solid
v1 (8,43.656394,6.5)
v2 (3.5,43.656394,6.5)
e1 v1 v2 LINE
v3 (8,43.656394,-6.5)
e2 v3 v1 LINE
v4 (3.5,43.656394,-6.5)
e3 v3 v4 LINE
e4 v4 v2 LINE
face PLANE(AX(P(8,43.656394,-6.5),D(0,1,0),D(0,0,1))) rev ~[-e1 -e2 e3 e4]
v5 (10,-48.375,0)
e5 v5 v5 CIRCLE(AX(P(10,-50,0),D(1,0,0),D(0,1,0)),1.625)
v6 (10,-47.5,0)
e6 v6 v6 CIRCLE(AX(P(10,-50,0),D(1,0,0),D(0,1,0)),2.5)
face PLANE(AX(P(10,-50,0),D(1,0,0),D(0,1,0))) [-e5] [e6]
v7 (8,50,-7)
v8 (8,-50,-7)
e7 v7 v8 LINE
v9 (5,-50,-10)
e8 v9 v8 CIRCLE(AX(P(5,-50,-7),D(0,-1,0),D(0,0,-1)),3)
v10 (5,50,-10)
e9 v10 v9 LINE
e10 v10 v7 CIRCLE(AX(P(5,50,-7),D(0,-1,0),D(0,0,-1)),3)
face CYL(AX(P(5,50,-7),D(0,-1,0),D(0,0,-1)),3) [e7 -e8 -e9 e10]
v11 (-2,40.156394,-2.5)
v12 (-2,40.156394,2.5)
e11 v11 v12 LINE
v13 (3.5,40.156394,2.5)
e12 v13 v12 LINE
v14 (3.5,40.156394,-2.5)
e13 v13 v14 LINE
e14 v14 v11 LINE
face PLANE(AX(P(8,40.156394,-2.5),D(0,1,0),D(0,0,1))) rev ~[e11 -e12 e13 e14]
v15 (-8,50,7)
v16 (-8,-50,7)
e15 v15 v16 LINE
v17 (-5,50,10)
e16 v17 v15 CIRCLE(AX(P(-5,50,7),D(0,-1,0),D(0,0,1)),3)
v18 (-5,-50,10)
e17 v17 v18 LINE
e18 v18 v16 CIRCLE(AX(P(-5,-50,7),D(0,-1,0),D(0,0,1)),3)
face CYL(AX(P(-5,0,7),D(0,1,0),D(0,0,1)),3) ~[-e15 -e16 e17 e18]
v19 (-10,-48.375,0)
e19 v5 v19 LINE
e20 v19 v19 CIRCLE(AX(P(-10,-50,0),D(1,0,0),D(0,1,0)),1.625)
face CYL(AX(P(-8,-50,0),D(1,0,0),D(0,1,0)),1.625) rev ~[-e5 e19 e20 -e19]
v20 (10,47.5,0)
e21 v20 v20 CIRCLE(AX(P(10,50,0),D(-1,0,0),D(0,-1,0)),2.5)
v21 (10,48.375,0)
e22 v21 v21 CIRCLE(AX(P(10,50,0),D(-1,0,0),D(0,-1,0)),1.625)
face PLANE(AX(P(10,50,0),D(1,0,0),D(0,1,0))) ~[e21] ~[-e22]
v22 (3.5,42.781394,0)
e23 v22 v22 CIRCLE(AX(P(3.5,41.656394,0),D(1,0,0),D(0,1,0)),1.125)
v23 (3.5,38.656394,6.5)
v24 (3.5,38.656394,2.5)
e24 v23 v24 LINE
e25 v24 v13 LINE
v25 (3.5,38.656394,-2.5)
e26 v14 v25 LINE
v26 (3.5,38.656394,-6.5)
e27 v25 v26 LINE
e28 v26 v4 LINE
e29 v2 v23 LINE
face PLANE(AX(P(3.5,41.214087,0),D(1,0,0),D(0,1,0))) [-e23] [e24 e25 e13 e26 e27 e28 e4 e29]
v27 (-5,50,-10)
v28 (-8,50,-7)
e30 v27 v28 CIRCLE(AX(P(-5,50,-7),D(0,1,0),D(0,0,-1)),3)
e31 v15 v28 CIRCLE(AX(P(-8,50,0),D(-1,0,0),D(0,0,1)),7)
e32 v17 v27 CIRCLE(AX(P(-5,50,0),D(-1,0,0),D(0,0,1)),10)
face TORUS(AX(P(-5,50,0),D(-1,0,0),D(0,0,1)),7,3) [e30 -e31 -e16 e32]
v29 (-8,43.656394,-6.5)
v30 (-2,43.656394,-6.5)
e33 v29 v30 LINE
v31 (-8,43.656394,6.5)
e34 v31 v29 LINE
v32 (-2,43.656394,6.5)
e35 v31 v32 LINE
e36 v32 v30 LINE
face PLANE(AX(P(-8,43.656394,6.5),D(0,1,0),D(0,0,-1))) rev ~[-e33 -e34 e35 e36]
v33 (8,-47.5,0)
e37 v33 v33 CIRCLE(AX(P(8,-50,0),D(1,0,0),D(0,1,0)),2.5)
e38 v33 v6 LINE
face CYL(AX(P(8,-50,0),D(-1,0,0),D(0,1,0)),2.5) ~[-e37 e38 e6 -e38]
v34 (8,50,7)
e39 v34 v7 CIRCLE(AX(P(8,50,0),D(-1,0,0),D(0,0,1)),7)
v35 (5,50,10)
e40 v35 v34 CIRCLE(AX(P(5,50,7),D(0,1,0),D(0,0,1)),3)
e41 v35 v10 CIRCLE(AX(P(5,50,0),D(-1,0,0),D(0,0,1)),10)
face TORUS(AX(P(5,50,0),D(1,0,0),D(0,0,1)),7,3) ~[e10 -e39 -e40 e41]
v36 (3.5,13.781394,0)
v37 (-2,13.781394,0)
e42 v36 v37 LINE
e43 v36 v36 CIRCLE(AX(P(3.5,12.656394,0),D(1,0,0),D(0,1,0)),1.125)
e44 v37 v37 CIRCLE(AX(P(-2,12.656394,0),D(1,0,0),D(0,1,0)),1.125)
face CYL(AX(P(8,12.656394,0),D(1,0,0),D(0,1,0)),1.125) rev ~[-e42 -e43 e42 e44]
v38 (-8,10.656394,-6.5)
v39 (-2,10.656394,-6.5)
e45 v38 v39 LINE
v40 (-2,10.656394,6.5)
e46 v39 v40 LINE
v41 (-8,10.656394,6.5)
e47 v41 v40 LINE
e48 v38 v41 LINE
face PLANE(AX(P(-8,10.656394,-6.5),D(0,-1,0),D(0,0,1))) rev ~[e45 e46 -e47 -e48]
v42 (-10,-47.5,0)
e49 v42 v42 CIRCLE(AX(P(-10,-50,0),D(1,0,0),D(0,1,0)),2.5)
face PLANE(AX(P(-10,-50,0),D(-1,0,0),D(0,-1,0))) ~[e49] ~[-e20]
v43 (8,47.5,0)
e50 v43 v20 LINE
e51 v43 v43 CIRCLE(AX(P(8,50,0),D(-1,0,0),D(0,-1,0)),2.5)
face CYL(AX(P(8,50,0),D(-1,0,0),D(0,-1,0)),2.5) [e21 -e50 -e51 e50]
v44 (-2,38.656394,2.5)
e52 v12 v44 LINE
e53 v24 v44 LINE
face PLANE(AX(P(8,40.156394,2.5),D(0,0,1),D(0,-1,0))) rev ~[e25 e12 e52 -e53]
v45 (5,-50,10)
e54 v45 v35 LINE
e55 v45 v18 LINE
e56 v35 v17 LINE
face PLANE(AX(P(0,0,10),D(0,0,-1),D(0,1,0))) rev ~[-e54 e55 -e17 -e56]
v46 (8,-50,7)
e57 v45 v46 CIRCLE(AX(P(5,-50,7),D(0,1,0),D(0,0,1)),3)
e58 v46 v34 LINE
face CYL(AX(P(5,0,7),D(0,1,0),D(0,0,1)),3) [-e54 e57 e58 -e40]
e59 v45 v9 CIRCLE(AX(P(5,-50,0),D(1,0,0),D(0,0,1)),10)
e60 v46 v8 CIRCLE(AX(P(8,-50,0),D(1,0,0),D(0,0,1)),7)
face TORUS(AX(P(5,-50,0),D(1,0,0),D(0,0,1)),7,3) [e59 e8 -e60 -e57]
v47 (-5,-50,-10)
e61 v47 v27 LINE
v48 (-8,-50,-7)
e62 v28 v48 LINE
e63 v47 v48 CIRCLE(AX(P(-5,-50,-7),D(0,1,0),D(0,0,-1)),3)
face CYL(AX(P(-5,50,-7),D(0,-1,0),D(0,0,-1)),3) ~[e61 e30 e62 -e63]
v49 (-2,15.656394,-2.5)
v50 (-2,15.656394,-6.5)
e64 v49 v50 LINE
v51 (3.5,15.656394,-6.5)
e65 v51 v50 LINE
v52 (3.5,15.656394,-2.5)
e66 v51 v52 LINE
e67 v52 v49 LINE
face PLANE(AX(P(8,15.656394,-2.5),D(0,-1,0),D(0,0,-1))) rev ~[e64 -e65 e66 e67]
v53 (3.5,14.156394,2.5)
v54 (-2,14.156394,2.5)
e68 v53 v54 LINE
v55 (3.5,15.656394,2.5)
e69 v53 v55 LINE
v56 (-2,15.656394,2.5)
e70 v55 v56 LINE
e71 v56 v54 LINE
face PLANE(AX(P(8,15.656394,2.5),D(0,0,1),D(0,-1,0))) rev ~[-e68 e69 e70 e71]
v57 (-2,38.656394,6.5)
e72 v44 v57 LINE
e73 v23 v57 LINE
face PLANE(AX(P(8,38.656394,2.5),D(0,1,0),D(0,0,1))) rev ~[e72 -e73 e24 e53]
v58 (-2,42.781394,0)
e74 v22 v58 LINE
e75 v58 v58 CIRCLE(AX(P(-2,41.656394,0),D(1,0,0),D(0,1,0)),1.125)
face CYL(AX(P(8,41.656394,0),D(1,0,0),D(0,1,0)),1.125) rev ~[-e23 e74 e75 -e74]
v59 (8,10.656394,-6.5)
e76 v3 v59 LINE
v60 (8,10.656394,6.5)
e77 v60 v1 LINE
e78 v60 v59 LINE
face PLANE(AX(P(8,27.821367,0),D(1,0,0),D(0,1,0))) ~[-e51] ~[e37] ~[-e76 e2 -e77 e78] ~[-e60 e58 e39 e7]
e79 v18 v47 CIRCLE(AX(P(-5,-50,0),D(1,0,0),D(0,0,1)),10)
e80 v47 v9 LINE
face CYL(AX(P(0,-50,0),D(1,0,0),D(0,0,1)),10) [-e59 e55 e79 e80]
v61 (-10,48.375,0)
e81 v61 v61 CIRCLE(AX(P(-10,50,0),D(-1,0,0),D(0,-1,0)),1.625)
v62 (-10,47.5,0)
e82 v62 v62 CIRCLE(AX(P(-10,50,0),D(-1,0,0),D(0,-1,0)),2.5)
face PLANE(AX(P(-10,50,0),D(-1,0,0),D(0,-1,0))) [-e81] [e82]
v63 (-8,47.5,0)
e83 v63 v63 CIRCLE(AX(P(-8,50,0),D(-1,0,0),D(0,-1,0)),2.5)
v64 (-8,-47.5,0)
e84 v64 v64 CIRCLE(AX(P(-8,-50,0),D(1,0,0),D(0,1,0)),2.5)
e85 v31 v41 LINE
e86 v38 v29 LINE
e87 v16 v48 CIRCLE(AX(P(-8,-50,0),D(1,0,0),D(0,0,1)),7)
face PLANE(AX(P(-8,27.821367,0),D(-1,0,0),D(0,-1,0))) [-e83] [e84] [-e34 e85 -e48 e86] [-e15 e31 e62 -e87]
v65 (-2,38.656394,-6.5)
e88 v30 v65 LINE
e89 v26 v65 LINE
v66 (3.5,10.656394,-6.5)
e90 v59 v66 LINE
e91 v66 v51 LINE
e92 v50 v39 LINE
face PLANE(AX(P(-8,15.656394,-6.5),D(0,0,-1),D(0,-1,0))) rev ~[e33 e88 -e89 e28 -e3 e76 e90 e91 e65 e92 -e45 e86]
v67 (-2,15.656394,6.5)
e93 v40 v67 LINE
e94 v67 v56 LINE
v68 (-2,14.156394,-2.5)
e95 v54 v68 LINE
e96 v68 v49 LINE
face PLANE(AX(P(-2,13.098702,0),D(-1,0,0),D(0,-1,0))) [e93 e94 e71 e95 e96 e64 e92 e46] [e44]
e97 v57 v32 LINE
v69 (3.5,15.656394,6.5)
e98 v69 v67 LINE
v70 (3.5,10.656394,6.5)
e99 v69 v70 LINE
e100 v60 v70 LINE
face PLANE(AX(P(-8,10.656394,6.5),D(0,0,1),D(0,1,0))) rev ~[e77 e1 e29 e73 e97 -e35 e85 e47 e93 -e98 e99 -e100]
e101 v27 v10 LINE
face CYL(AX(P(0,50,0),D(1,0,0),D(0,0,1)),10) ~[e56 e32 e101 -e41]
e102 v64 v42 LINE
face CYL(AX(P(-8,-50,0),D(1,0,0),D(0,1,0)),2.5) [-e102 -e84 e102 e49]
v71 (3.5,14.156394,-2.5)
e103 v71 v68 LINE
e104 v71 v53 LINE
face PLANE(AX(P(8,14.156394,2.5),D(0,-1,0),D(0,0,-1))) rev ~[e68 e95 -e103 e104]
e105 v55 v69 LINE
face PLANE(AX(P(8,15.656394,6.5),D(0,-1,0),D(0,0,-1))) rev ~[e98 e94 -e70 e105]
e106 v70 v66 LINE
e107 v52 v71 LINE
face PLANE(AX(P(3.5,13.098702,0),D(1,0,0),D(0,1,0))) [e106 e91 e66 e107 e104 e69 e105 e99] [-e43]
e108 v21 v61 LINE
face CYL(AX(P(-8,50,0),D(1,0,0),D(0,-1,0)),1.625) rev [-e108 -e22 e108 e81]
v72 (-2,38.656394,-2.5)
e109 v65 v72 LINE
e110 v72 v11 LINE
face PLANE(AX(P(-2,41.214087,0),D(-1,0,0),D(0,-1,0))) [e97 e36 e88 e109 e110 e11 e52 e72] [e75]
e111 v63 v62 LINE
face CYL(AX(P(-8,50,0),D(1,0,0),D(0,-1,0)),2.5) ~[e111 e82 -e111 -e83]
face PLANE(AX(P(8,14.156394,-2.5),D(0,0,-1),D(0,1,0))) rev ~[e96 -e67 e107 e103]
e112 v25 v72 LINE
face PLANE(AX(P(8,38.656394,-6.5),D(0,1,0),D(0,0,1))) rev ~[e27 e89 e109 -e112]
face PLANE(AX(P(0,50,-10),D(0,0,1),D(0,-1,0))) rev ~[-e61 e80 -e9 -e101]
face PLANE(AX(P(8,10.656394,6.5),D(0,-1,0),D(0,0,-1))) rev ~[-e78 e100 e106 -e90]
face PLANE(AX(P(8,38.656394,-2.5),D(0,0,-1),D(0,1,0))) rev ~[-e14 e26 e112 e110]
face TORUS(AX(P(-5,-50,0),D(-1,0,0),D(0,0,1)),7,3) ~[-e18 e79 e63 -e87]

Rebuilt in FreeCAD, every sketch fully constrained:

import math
import FreeCAD as App
import Part
import Sketcher
from FreeCAD import Vector


def edges_at(feature, points):
    """Names of the edges that pass closest to the given points."""
    edges = feature.Shape.Edges
    near = lambda p: min(range(len(edges)), key=lambda i: edges[i].distToShape(Part.Vertex(*p))[0])
    return sorted({f"Edge{near(p) + 1}" for p in points})


def add_polygon(sketch, points):
    """Adds a closed chain of lines whose ends are joined by coincident constraints."""
    first, n = sketch.GeometryCount, len(points)
    for a, b in zip(points, points[1:] + points[:1]):
        sketch.addGeometry(Part.LineSegment(App.Vector(*a, 0), App.Vector(*b, 0)), False)
    for i in range(n):
        sketch.addConstraint(Sketcher.Constraint("Coincident", first + i, 2, first + (i + 1) % n, 1))

doc = App.newDocument("Part")
body = doc.addObject("PartDesign::Body", "Body")

sketch1 = doc.addObject("Sketcher::SketchObject", "Sketch")
body.addObject(sketch1)
sketch1.AttachmentSupport = (doc.YZ_Plane, [""])
sketch1.MapMode = "FlatFace"
sketch1.addGeometry(Part.LineSegment(Vector(0, -10, 0), Vector(0, 10, 0)), False)
sketch1.addGeometry(Part.LineSegment(Vector(0, 10, 0), Vector(-50, 10, 0)), False)
sketch1.addGeometry(Part.ArcOfCircle(Part.Circle(Vector(-50, 0, 0), Vector(0, 0, 1), 10), math.radians(90), math.radians(270)), False)
sketch1.addGeometry(Part.LineSegment(Vector(-50, -10, 0), Vector(0, -10, 0)), False)
sketch1.addGeometry(Part.Circle(Vector(-50, 0, 0), Vector(0, 0, 1), 1.625), False)
sketch1.addConstraint(Sketcher.Constraint("Coincident", 0, 2, 1, 1))
sketch1.addConstraint(Sketcher.Constraint("Tangent", 1, 2, 2, 1))
sketch1.addConstraint(Sketcher.Constraint("Tangent", 2, 2, 3, 1))
sketch1.addConstraint(Sketcher.Constraint("Coincident", 3, 2, 0, 1))
sketch1.addConstraint(Sketcher.Constraint("Vertical", 0))
sketch1.addConstraint(Sketcher.Constraint("Horizontal", 1))
sketch1.addConstraint(Sketcher.Constraint("Horizontal", 3))
sketch1.addConstraint(Sketcher.Constraint("Coincident", 4, 3, 2, 3))
sketch1.addConstraint(Sketcher.Constraint("Symmetric", 0, 2, 3, 2, -1, 1))
sketch1.addConstraint(Sketcher.Constraint("Radius", 2, 10.0))
sketch1.addConstraint(Sketcher.Constraint("Diameter", 4, 3.25))
sketch1.addConstraint(Sketcher.Constraint("DistanceX", 1, 2, 1, 1, 50.0))
pad1 = doc.addObject("PartDesign::Pad", "Pad")
body.addObject(pad1)
pad1.Profile = sketch1
pad1.Length = 8

sketch2 = doc.addObject("Sketcher::SketchObject", "Sketch001")
body.addObject(sketch2)
sketch2.AttachmentSupport = (doc.YZ_Plane, [""])
sketch2.MapMode = "FlatFace"
sketch2.AttachmentOffset = App.Placement(Vector(0, 0, 8), App.Rotation())
sketch2.addGeometry(Part.Circle(Vector(-50, 0, 0), Vector(0, 0, 1), 2.5), False)
sketch2.addGeometry(Part.Circle(Vector(-50, 0, 0), Vector(0, 0, 1), 1.625), False)
sketch2.addConstraint(Sketcher.Constraint("Coincident", 1, 3, 0, 3))
sketch2.addConstraint(Sketcher.Constraint("PointOnObject", 0, 3, -1))
sketch2.addConstraint(Sketcher.Constraint("Diameter", 0, 5.0))
sketch2.addConstraint(Sketcher.Constraint("Diameter", 1, 3.25))
sketch2.addConstraint(Sketcher.Constraint("DistanceX", 0, 3, -1, 1, 50.0))
pad2 = doc.addObject("PartDesign::Pad", "Pad001")
body.addObject(pad2)
pad2.Profile = sketch2
pad2.Length = 2
doc.recompute()

fillet = doc.addObject("PartDesign::Fillet", "Fillet")
body.addObject(fillet)
fillet.Base = (pad2, edges_at(pad2, [(8, -25, 10)]))
fillet.Radius = 3
body2 = doc.addObject("PartDesign::Body", "Body001")
doc.recompute()

body2.BaseFeature = body
doc.recompute()

mirroring = doc.addObject("Part::Mirroring", "Mirroring")
mirroring.Source = body
mirroring.Base = Vector(0, 0, 0)
mirroring.Normal = Vector(1, 0, 0)
body3 = doc.addObject("PartDesign::Body", "Body002")
body3.BaseFeature = mirroring
boolean = doc.addObject("PartDesign::Boolean", "Boolean")
body2.addObject(boolean)
boolean.Type = "Fuse"
boolean.addObjects([body3])
doc.recompute()
body4 = doc.addObject("PartDesign::Body", "Body003")
doc.recompute()

body4.BaseFeature = body2
doc.recompute()

mirroring2 = doc.addObject("Part::Mirroring", "Mirroring001")
mirroring2.Source = body2
mirroring2.Base = Vector(0, 0, 0)
mirroring2.Normal = Vector(0, -1, 0)
body5 = doc.addObject("PartDesign::Body", "Body004")
body5.BaseFeature = mirroring2
boolean2 = doc.addObject("PartDesign::Boolean", "Boolean001")
body4.addObject(boolean2)
boolean2.Type = "Fuse"
boolean2.addObjects([body5])
doc.recompute()

sketch3 = doc.addObject("Sketcher::SketchObject", "Sketch002")
body4.addObject(sketch3)
sketch3.AttachmentSupport = (doc.getObject("YZ_Plane003"), [""])
sketch3.MapMode = "FlatFace"
sketch3.AttachmentOffset = App.Placement(Vector(0, 0, 8), App.Rotation())
add_polygon(sketch3, [(15.656394, -6.5), (38.656394, -6.5), (38.656394, -2.5), (40.156394, -2.5), (40.156394, 2.5), (38.656394, 2.5), (38.656394, 6.5), (15.656394, 6.5), (15.656394, 2.5), (14.156394, 2.5), (14.156394, -2.5), (15.656394, -2.5)])
sketch3.addGeometry(Part.Circle(Vector(12.656394, 0, 0), Vector(0, 0, 1), 1.125), False)
sketch3.addGeometry(Part.Circle(Vector(41.656394, 0, 0), Vector(0, 0, 1), 1.125), False)
sketch3.addConstraint(Sketcher.Constraint("Horizontal", 0))
sketch3.addConstraint(Sketcher.Constraint("Vertical", 1))
sketch3.addConstraint(Sketcher.Constraint("Horizontal", 2))
sketch3.addConstraint(Sketcher.Constraint("Vertical", 3))
sketch3.addConstraint(Sketcher.Constraint("Horizontal", 4))
sketch3.addConstraint(Sketcher.Constraint("Vertical", 5))
sketch3.addConstraint(Sketcher.Constraint("Horizontal", 6))
sketch3.addConstraint(Sketcher.Constraint("Vertical", 7))
sketch3.addConstraint(Sketcher.Constraint("Horizontal", 8))
sketch3.addConstraint(Sketcher.Constraint("Vertical", 9))
sketch3.addConstraint(Sketcher.Constraint("Horizontal", 10))
sketch3.addConstraint(Sketcher.Constraint("Vertical", 11))
sketch3.addConstraint(Sketcher.Constraint("Equal", 12, 13))
sketch3.addConstraint(Sketcher.Constraint("Symmetric", 1, 2, 4, 2, -1))
sketch3.addConstraint(Sketcher.Constraint("Symmetric", 7, 2, 10, 2, -1))
sketch3.addConstraint(Sketcher.Constraint("PointOnObject", 12, 3, -1))
sketch3.addConstraint(Sketcher.Constraint("PointOnObject", 13, 3, -1))
sketch3.addConstraint(Sketcher.Constraint("Horizontal", 4, 2, 7, 2))
sketch3.addConstraint(Sketcher.Constraint("Equal", 4, 8))
sketch3.addConstraint(Sketcher.Constraint("Equal", 1, 5))
sketch3.addConstraint(Sketcher.Constraint("Diameter", 12, 2.25))
sketch3.addConstraint(Sketcher.Constraint("DistanceX", 0, 1, 0, 2, 23.0))
sketch3.addConstraint(Sketcher.Constraint("DistanceY", 1, 1, 1, 2, 4.0))
sketch3.addConstraint(Sketcher.Constraint("DistanceY", 3, 1, 3, 2, 5.0))
sketch3.addConstraint(Sketcher.Constraint("DistanceX", 2, 1, 2, 2, 1.5))
sketch3.addConstraint(Sketcher.Constraint("DistanceX", 12, 3, 13, 3, 29.0))
sketch3.addConstraint(Sketcher.Constraint("DistanceX", 0, 2, 13, 3, 3.0))
sketch3.addConstraint(Sketcher.Constraint("DistanceX", -1, 1, 12, 3, 12.656394))
pocket1 = doc.addObject("PartDesign::Pocket", "Pocket")
body4.addObject(pocket1)
pocket1.Profile = sketch3
pocket1.Type = "ThroughAll"

sketch4 = doc.addObject("Sketcher::SketchObject", "Sketch003")
body4.addObject(sketch4)
sketch4.AttachmentSupport = (doc.getObject("YZ_Plane003"), [""])
sketch4.MapMode = "FlatFace"
sketch4.AttachmentOffset = App.Placement(Vector(0, 0, 8), App.Rotation())
add_polygon(sketch4, [(15.656394, 6.5), (10.656394, 6.5), (10.656394, -6.5), (15.656394, -6.5), (15.656394, -2.5), (14.156394, -2.5), (14.156394, 2.5), (15.656394, 2.5)])
sketch4.addGeometry(Part.Circle(Vector(12.656394, 0, 0), Vector(0, 0, 1), 1.125), False)
add_polygon(sketch4, [(43.656394, 6.5), (38.656394, 6.5), (38.656394, 2.5), (40.156394, 2.5), (40.156394, -2.5), (38.656394, -2.5), (38.656394, -6.5), (43.656394, -6.5)])
sketch4.addGeometry(Part.Circle(Vector(41.656394, 0, 0), Vector(0, 0, 1), 1.125), False)
sketch4.addConstraint(Sketcher.Constraint("Horizontal", 0))
sketch4.addConstraint(Sketcher.Constraint("Vertical", 1))
sketch4.addConstraint(Sketcher.Constraint("Horizontal", 2))
sketch4.addConstraint(Sketcher.Constraint("Vertical", 3))
sketch4.addConstraint(Sketcher.Constraint("Horizontal", 4))
sketch4.addConstraint(Sketcher.Constraint("Vertical", 5))
sketch4.addConstraint(Sketcher.Constraint("Horizontal", 6))
sketch4.addConstraint(Sketcher.Constraint("Vertical", 7))
sketch4.addConstraint(Sketcher.Constraint("Horizontal", 9))
sketch4.addConstraint(Sketcher.Constraint("Vertical", 10))
sketch4.addConstraint(Sketcher.Constraint("Horizontal", 11))
sketch4.addConstraint(Sketcher.Constraint("Vertical", 12))
sketch4.addConstraint(Sketcher.Constraint("Horizontal", 13))
sketch4.addConstraint(Sketcher.Constraint("Vertical", 14))
sketch4.addConstraint(Sketcher.Constraint("Horizontal", 15))
sketch4.addConstraint(Sketcher.Constraint("Vertical", 16))
sketch4.addConstraint(Sketcher.Constraint("Equal", 8, 17))
sketch4.addConstraint(Sketcher.Constraint("Symmetric", 3, 2, 6, 2, -1))
sketch4.addConstraint(Sketcher.Constraint("Symmetric", 10, 2, 13, 2, -1))
sketch4.addConstraint(Sketcher.Constraint("PointOnObject", 8, 3, -1))
sketch4.addConstraint(Sketcher.Constraint("PointOnObject", 17, 3, -1))
sketch4.addConstraint(Sketcher.Constraint("Horizontal", 7, 2, 9, 2))
sketch4.addConstraint(Sketcher.Constraint("Horizontal", 6, 2, 10, 2))
sketch4.addConstraint(Sketcher.Constraint("Horizontal", 2, 2, 14, 2))
sketch4.addConstraint(Sketcher.Constraint("Equal", 2, 9))
sketch4.addConstraint(Sketcher.Constraint("Equal", 6, 11))
sketch4.addConstraint(Sketcher.Constraint("Equal", 15, 5))
sketch4.addConstraint(Sketcher.Constraint("Equal", 3, 7))
sketch4.addConstraint(Sketcher.Constraint("Diameter", 8, 2.25))
sketch4.addConstraint(Sketcher.Constraint("DistanceX", 0, 2, 0, 1, 5.0))
sketch4.addConstraint(Sketcher.Constraint("DistanceY", 1, 2, 1, 1, 13.0))
sketch4.addConstraint(Sketcher.Constraint("DistanceX", 4, 2, 4, 1, 1.5))
sketch4.addConstraint(Sketcher.Constraint("DistanceX", 8, 3, 17, 3, 29.0))
sketch4.addConstraint(Sketcher.Constraint("DistanceX", 0, 2, 8, 3, 2.0))
sketch4.addConstraint(Sketcher.Constraint("DistanceX", 9, 2, 17, 3, 3.0))
sketch4.addConstraint(Sketcher.Constraint("DistanceX", -1, 1, 8, 3, 12.656394))
pocket2 = doc.addObject("PartDesign::Pocket", "Pocket001")
body4.addObject(pocket2)
pocket2.Profile = sketch4
pocket2.Length = 4.5

sketch5 = doc.addObject("Sketcher::SketchObject", "Sketch004")
body4.addObject(sketch5)
sketch5.AttachmentSupport = (doc.getObject("YZ_Plane003"), [""])
sketch5.MapMode = "FlatFace"
sketch5.AttachmentOffset = App.Placement(Vector(0, 0, -8), App.Rotation())
add_polygon(sketch5, [(43.656394, 6.5), (43.656394, -6.5), (38.656394, -6.5), (38.656394, -2.5), (40.156394, -2.5), (40.156394, 2.5), (38.656394, 2.5), (38.656394, 6.5)])
sketch5.addGeometry(Part.Circle(Vector(41.656394, 0, 0), Vector(0, 0, 1), 1.125), False)
add_polygon(sketch5, [(15.656394, -2.5), (15.656394, -6.5), (10.656394, -6.5), (10.656394, 6.5), (15.656394, 6.5), (15.656394, 2.5), (14.156394, 2.5), (14.156394, -2.5)])
sketch5.addGeometry(Part.Circle(Vector(12.656394, 0, 0), Vector(0, 0, 1), 1.125), False)
sketch5.addConstraint(Sketcher.Constraint("Vertical", 0))
sketch5.addConstraint(Sketcher.Constraint("Horizontal", 1))
sketch5.addConstraint(Sketcher.Constraint("Vertical", 2))
sketch5.addConstraint(Sketcher.Constraint("Horizontal", 3))
sketch5.addConstraint(Sketcher.Constraint("Vertical", 4))
sketch5.addConstraint(Sketcher.Constraint("Horizontal", 5))
sketch5.addConstraint(Sketcher.Constraint("Vertical", 6))
sketch5.addConstraint(Sketcher.Constraint("Horizontal", 7))
sketch5.addConstraint(Sketcher.Constraint("Vertical", 9))
sketch5.addConstraint(Sketcher.Constraint("Horizontal", 10))
sketch5.addConstraint(Sketcher.Constraint("Vertical", 11))
sketch5.addConstraint(Sketcher.Constraint("Horizontal", 12))
sketch5.addConstraint(Sketcher.Constraint("Vertical", 13))
sketch5.addConstraint(Sketcher.Constraint("Horizontal", 14))
sketch5.addConstraint(Sketcher.Constraint("Vertical", 15))
sketch5.addConstraint(Sketcher.Constraint("Horizontal", 16))
sketch5.addConstraint(Sketcher.Constraint("Equal", 8, 17))
sketch5.addConstraint(Sketcher.Constraint("Symmetric", 2, 2, 5, 2, -1))
sketch5.addConstraint(Sketcher.Constraint("Symmetric", 9, 2, 12, 2, -1))
sketch5.addConstraint(Sketcher.Constraint("PointOnObject", 8, 3, -1))
sketch5.addConstraint(Sketcher.Constraint("PointOnObject", 17, 3, -1))
sketch5.addConstraint(Sketcher.Constraint("Horizontal", 1, 2, 9, 2))
sketch5.addConstraint(Sketcher.Constraint("Horizontal", 7, 2, 11, 2))
sketch5.addConstraint(Sketcher.Constraint("Horizontal", 5, 2, 13, 2))
sketch5.addConstraint(Sketcher.Constraint("Horizontal", 3, 2, 15, 2))
sketch5.addConstraint(Sketcher.Constraint("Equal", 7, 10))
sketch5.addConstraint(Sketcher.Constraint("Equal", 5, 14))
sketch5.addConstraint(Sketcher.Constraint("Equal", 12, 4))
sketch5.addConstraint(Sketcher.Constraint("Diameter", 8, 2.25))
sketch5.addConstraint(Sketcher.Constraint("DistanceX", 1, 2, 1, 1, 5.0))
sketch5.addConstraint(Sketcher.Constraint("DistanceY", 0, 2, 0, 1, 13.0))
sketch5.addConstraint(Sketcher.Constraint("DistanceX", 3, 1, 3, 2, 1.5))
sketch5.addConstraint(Sketcher.Constraint("DistanceX", 17, 3, 8, 3, 29.0))
sketch5.addConstraint(Sketcher.Constraint("DistanceX", 8, 3, 0, 2, 2.0))
sketch5.addConstraint(Sketcher.Constraint("DistanceX", 17, 3, 9, 2, 3.0))
sketch5.addConstraint(Sketcher.Constraint("DistanceX", -1, 1, 8, 3, 41.656394))
pocket3 = doc.addObject("PartDesign::Pocket", "Pocket002")
body4.addObject(pocket3)
pocket3.Profile = sketch5
pocket3.Length = 6
pocket3.Reversed = True
mirroring.Visibility = False
mirroring2.Visibility = False

doc.recompute()
